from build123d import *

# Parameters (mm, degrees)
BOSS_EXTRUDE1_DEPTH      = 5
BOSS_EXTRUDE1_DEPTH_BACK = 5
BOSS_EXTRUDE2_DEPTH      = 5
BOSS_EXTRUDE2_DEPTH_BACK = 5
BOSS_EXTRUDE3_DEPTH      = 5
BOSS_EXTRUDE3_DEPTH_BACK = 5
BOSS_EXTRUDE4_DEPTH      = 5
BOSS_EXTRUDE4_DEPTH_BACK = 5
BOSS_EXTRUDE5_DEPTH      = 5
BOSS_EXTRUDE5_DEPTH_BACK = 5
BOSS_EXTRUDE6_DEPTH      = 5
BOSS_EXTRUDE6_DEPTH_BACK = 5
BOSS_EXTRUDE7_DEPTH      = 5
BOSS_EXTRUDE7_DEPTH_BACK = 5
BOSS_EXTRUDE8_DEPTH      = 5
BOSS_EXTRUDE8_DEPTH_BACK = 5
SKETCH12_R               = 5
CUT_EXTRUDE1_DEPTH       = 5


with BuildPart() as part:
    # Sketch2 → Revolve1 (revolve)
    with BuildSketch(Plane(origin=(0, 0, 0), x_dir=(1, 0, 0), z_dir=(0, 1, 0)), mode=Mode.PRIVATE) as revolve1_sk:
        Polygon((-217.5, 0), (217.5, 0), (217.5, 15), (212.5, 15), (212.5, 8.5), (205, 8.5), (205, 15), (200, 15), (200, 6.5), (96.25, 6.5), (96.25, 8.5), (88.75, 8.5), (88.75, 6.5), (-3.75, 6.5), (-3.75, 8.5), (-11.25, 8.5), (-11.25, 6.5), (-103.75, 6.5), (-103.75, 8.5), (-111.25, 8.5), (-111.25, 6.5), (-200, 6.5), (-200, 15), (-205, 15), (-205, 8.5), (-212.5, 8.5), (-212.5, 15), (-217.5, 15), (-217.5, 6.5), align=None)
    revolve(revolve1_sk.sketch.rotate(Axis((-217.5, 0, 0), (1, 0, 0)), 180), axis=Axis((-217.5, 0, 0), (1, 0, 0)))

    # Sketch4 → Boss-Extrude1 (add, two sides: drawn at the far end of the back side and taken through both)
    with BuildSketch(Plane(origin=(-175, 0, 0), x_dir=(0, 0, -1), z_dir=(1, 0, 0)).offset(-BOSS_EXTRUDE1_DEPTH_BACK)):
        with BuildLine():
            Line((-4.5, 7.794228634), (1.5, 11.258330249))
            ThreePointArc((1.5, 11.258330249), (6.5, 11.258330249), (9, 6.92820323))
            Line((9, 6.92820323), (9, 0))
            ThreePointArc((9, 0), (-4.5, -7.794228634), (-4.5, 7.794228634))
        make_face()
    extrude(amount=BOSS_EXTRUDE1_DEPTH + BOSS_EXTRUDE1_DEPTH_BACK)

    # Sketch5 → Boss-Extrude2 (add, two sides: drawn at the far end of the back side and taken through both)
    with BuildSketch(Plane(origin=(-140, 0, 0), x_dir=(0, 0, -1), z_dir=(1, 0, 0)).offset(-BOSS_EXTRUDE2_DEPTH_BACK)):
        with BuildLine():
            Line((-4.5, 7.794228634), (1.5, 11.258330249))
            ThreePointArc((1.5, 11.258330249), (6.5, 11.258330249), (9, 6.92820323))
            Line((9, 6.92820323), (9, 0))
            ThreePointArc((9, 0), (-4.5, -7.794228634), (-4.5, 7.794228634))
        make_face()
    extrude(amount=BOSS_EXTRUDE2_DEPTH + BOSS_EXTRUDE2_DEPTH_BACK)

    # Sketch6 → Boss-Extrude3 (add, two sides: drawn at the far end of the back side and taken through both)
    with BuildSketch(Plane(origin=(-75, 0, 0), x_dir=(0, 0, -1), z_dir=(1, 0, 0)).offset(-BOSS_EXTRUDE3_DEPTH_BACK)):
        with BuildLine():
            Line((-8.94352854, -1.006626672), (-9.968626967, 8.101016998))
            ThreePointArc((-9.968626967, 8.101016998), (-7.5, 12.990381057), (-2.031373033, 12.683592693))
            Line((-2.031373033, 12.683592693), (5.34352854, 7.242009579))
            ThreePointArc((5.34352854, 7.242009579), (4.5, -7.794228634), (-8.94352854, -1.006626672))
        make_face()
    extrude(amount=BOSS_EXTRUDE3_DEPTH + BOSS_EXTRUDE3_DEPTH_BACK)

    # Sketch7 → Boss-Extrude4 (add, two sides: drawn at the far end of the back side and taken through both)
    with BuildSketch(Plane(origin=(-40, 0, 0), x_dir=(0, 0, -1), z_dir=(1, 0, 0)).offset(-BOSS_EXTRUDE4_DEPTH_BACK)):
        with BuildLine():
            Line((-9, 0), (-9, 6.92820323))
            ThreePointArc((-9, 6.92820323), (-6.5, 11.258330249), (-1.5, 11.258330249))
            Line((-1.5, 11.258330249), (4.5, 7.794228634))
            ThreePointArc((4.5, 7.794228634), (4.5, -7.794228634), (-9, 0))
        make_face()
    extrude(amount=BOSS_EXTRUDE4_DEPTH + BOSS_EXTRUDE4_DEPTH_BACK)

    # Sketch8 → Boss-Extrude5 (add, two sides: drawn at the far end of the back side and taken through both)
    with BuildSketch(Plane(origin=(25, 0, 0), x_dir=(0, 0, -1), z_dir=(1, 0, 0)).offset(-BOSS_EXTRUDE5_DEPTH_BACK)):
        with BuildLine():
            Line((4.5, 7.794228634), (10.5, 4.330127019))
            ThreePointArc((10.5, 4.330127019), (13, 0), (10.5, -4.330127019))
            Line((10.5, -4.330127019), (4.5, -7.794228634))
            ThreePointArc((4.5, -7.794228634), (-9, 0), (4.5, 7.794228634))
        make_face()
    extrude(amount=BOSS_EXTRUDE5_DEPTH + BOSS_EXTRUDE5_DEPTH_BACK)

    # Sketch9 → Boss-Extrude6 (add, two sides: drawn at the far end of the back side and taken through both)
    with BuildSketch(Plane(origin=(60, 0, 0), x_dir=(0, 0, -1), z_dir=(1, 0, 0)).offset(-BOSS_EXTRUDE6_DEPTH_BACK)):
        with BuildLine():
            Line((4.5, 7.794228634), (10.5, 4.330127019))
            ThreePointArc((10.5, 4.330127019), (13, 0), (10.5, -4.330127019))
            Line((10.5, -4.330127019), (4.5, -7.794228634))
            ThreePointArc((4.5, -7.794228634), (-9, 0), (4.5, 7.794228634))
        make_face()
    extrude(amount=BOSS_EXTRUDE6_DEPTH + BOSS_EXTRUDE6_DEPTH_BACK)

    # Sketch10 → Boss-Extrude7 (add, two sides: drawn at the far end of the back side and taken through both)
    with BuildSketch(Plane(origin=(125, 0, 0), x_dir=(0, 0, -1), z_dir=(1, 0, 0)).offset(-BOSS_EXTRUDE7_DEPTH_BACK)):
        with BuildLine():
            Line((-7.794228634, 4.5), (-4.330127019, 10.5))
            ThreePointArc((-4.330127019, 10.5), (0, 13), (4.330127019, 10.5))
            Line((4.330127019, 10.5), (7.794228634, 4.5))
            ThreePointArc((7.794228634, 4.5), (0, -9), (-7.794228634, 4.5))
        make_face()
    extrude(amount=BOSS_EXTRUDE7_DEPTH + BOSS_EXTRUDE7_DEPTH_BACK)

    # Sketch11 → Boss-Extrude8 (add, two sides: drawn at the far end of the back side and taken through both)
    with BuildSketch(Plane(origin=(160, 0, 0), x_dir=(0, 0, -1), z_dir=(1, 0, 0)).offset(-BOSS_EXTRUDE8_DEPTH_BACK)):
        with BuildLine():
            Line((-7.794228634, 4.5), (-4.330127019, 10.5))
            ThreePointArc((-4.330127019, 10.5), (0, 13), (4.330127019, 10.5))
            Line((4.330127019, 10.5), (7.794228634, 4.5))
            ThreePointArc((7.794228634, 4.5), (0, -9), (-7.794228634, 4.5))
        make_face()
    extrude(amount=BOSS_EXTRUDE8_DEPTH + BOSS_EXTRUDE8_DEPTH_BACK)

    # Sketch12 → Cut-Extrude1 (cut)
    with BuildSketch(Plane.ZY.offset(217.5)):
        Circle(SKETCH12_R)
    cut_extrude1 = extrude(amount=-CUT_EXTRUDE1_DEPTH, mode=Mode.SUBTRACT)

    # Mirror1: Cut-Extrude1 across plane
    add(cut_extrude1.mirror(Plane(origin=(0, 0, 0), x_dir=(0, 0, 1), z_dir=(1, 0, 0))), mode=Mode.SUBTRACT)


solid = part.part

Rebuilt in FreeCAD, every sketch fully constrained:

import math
import FreeCAD as App
import Part
import Sketcher
Q = App.Units.Quantity


def add_polygon(sketch, points):
    """Adds a closed chain of lines whose ends are joined by coincident constraints."""
    first, n = sketch.GeometryCount, len(points)
    for a, b in zip(points, points[1:] + points[:1]):
        sketch.addGeometry(Part.LineSegment(App.Vector(*a, 0), App.Vector(*b, 0)), False)
    for i in range(n):
        sketch.addConstraint(Sketcher.Constraint("Coincident", first + i, 2, first + (i + 1) % n, 1))

doc = App.newDocument("Part")
body = doc.addObject("PartDesign::Body", "Body")

# Sketch on XZ plane
sketch1 = body.newObject("Sketcher::SketchObject", "Sketch")
sketch1.AttachmentSupport = (doc.getObject("XZ_Plane"), [""])
sketch1.MapMode = "FlatFace"
add_polygon(sketch1, [(-217.5, 0), (217.5, 0), (217.5, -15), (212.5, -15), (212.5, -8.5), (205, -8.5), (205, -15), (200, -15), (200, -6.5), (96.25, -6.5), (96.25, -8.5), (88.75, -8.5), (88.75, -6.5), (-3.75, -6.5), (-3.75, -8.5), (-11.25, -8.5), (-11.25, -6.5), (-103.75, -6.5), (-103.75, -8.5), (-111.25, -8.5), (-111.25, -6.5), (-200, -6.5), (-200, -15), (-205, -15), (-205, -8.5), (-212.5, -8.5), (-212.5, -15), (-217.5, -15)])  # lines 0-27
sketch1.addConstraint([
    Sketcher.Constraint("Horizontal", 0),
    Sketcher.Constraint("Vertical", 1),
    Sketcher.Constraint("Horizontal", 2),
    Sketcher.Constraint("Vertical", 3),
    Sketcher.Constraint("Horizontal", 4),
    Sketcher.Constraint("Vertical", 5),
    Sketcher.Constraint("Horizontal", 6),
    Sketcher.Constraint("Vertical", 7),
    Sketcher.Constraint("Horizontal", 8),
    Sketcher.Constraint("Vertical", 9),
    Sketcher.Constraint("Horizontal", 10),
    Sketcher.Constraint("Vertical", 11),
    Sketcher.Constraint("Horizontal", 12),
    Sketcher.Constraint("Vertical", 13),
    Sketcher.Constraint("Horizontal", 14),
    Sketcher.Constraint("Vertical", 15),
    Sketcher.Constraint("Horizontal", 16),
    Sketcher.Constraint("Vertical", 17),
    Sketcher.Constraint("Horizontal", 18),
    Sketcher.Constraint("Vertical", 19),
    Sketcher.Constraint("Horizontal", 20),
    Sketcher.Constraint("Vertical", 21),
    Sketcher.Constraint("Horizontal", 22),
    Sketcher.Constraint("Vertical", 23),
    Sketcher.Constraint("Horizontal", 24),
    Sketcher.Constraint("Vertical", 25),
    Sketcher.Constraint("Horizontal", 26),
    Sketcher.Constraint("Vertical", 27),
    Sketcher.Constraint("Symmetric", 0, 2, 27, 2, -1, 1),
    Sketcher.Constraint("Symmetric", 7, 2, 20, 2, -2),
    Sketcher.Constraint("Symmetric", 5, 2, 22, 2, -2),
    Sketcher.Constraint("Symmetric", 3, 2, 24, 2, -2),
    Sketcher.Constraint("Horizontal", 2, 2, 5, 2),
    Sketcher.Constraint("Horizontal", 4, 2, 9, 2),
    Sketcher.Constraint("Horizontal", 8, 2, 11, 2),
    Sketcher.Constraint("Horizontal", 10, 2, 13, 2),
    Sketcher.Constraint("Horizontal", 12, 2, 15, 2),
    Sketcher.Constraint("Horizontal", 14, 2, 17, 2),
    Sketcher.Constraint("Horizontal", 22, 2, 25, 2),
    Sketcher.Constraint("Equal", 2, 6),
    Sketcher.Constraint("Equal", 4, 10),
    Sketcher.Constraint("Equal", 10, 14),
    Sketcher.Constraint("Equal", 12, 16),
    Sketcher.Constraint("Equal", 14, 18),
    Sketcher.Constraint("DistanceX", 0, 1, 0, 2, Q("435 mm")),
    Sketcher.Constraint("DistanceX", 2, 2, 2, 1, Q("5 mm")),
    Sketcher.Constraint("DistanceY", 1, 2, 1, 1, Q("15 mm")),
    Sketcher.Constraint("DistanceY", 9, 2, 9, 1, Q("2 mm")),
    Sketcher.Constraint("DistanceX", 4, 2, 4, 1, Q("7.5 mm")),
    Sketcher.Constraint("DistanceX", 12, 2, 12, 1, Q("92.5 mm")),
    Sketcher.Constraint("DistanceY", 3, 1, 3, 2, Q("6.5 mm")),
    Sketcher.Constraint("DistanceX", 8, 2, 8, 1, Q("103.75 mm")),
])
revolution = body.newObject("PartDesign::Revolution", "Revolution")
revolution.Profile = sketch1
revolution.ReferenceAxis = (sketch1, ["H_Axis"])
revolution.Angle = 360

# Sketch on YZ plane
sketch2 = body.newObject("Sketcher::SketchObject", "Sketch001")
sketch2.AttachmentSupport = (doc.getObject("YZ_Plane"), [""])
sketch2.MapMode = "FlatFace"
sketch2.AttachmentOffset = App.Placement(App.Vector(0, 0, -175), App.Rotation())
sketch2.addGeometry([
    Part.LineSegment(App.Vector(11.25833, -1.5, 0), App.Vector(7.794229, 4.5, 0)),
    Part.ArcOfCircle(Part.Circle(App.Vector(0, 0, 0), App.Vector(0, 0, 1), 9), math.radians(30), math.radians(270)),
    Part.LineSegment(App.Vector(0, -9, 0), App.Vector(6.928203, -9, 0)),
    Part.ArcOfCircle(Part.Circle(App.Vector(6.928203, -4, 0), App.Vector(0, 0, 1), 5), math.radians(-90), math.radians(30)),
], False)
sketch2.addConstraint([
    Sketcher.Constraint("Tangent", 0, 2, 1, 1),
    Sketcher.Constraint("Tangent", 1, 2, 2, 1),
    Sketcher.Constraint("Tangent", 2, 2, 3, 1),
    Sketcher.Constraint("Tangent", 3, 2, 0, 1),
    Sketcher.Constraint("Horizontal", 2),
    Sketcher.Constraint("Coincident", 1, 3, -1, 1),
    Sketcher.Constraint("Radius", 1, Q("9 mm")),
    Sketcher.Constraint("Radius", 3, Q("5 mm")),
    Sketcher.Constraint("Angle", 0, Q("120 deg")),
])
pad1 = body.newObject("PartDesign::Pad", "Pad")
pad1.Profile = sketch2
pad1.Type = "TwoLengths"
pad1.Length = 5
pad1.Length2 = 5

# Sketch on YZ plane
sketch3 = body.newObject("Sketcher::SketchObject", "Sketch002")
sketch3.AttachmentSupport = (doc.getObject("YZ_Plane"), [""])
sketch3.MapMode = "FlatFace"
sketch3.AttachmentOffset = App.Placement(App.Vector(0, 0, -140), App.Rotation())
sketch3.addGeometry([
    Part.LineSegment(App.Vector(11.25833, -1.5, 0), App.Vector(7.794229, 4.5, 0)),
    Part.ArcOfCircle(Part.Circle(App.Vector(0, 0, 0), App.Vector(0, 0, 1), 9), math.radians(30), math.radians(270)),
    Part.LineSegment(App.Vector(0, -9, 0), App.Vector(6.928203, -9, 0)),
    Part.ArcOfCircle(Part.Circle(App.Vector(6.928203, -4, 0), App.Vector(0, 0, 1), 5), math.radians(-90), math.radians(30)),
], False)
sketch3.addConstraint([
    Sketcher.Constraint("Tangent", 0, 2, 1, 1),
    Sketcher.Constraint("Tangent", 1, 2, 2, 1),
    Sketcher.Constraint("Tangent", 2, 2, 3, 1),
    Sketcher.Constraint("Tangent", 3, 2, 0, 1),
    Sketcher.Constraint("Horizontal", 2),
    Sketcher.Constraint("Coincident", 1, 3, -1, 1),
    Sketcher.Constraint("Radius", 1, Q("9 mm")),
    Sketcher.Constraint("Radius", 3, Q("5 mm")),
    Sketcher.Constraint("Angle", 0, Q("120 deg")),
])
pad2 = body.newObject("PartDesign::Pad", "Pad001")
pad2.Profile = sketch3
pad2.Type = "TwoLengths"
pad2.Length = 5
pad2.Length2 = 5

# Sketch on YZ plane
sketch4 = body.newObject("Sketcher::SketchObject", "Sketch003")
sketch4.AttachmentSupport = (doc.getObject("YZ_Plane"), [""])
sketch4.MapMode = "FlatFace"
sketch4.AttachmentOffset = App.Placement(App.Vector(0, 0, -75), App.Rotation())
sketch4.addGeometry([
    Part.LineSegment(App.Vector(8.101017, 9.968627, 0), App.Vector(-1.006627, 8.943529, 0)),
    Part.ArcOfCircle(Part.Circle(App.Vector(0, 0, 0), App.Vector(0, 0, 1), 9), math.radians(96.421822), math.radians(323.578178)),
    Part.LineSegment(App.Vector(7.24201, -5.343529, 0), App.Vector(12.683593, 2.031373, 0)),
    Part.ArcOfCircle(Part.Circle(App.Vector(8.660254, 5, 0), App.Vector(0, 0, 1), 5), math.radians(-36.421822), math.radians(96.421822)),
], False)
sketch4.addConstraint([
    Sketcher.Constraint("Tangent", 0, 2, 1, 1),
    Sketcher.Constraint("Tangent", 1, 2, 2, 1),
    Sketcher.Constraint("Tangent", 2, 2, 3, 1),
    Sketcher.Constraint("Tangent", 3, 2, 0, 1),
    Sketcher.Constraint("Coincident", 1, 3, -1, 1),
    Sketcher.Constraint("Radius", 1, Q("9 mm")),
    Sketcher.Constraint("Radius", 3, Q("5 mm")),
    Sketcher.Constraint("DistanceY", -1, 1, 3, 3, Q("5 mm")),
    Sketcher.Constraint("DistanceY", 1, 2, 2, 2, Q("7.374902 mm")),
])
pad3 = body.newObject("PartDesign::Pad", "Pad002")
pad3.Profile = sketch4
pad3.Type = "TwoLengths"
pad3.Length = 5
pad3.Length2 = 5

# Sketch on YZ plane
sketch5 = body.newObject("Sketcher::SketchObject", "Sketch004")
sketch5.AttachmentSupport = (doc.getObject("YZ_Plane"), [""])
sketch5.MapMode = "FlatFace"
sketch5.AttachmentOffset = App.Placement(App.Vector(0, 0, -40), App.Rotation())
sketch5.addGeometry([
    Part.LineSegment(App.Vector(6.928203, 9, 0), App.Vector(0, 9, 0)),
    Part.ArcOfCircle(Part.Circle(App.Vector(0, 0, 0), App.Vector(0, 0, 1), 9), math.radians(90), math.radians(330)),
    Part.LineSegment(App.Vector(7.794229, -4.5, 0), App.Vector(11.25833, 1.5, 0)),
    Part.ArcOfCircle(Part.Circle(App.Vector(6.928203, 4, 0), App.Vector(0, 0, 1), 5), math.radians(-30), math.radians(90)),
], False)
sketch5.addConstraint([
    Sketcher.Constraint("Tangent", 0, 2, 1, 1),
    Sketcher.Constraint("Tangent", 1, 2, 2, 1),
    Sketcher.Constraint("Tangent", 2, 2, 3, 1),
    Sketcher.Constraint("Tangent", 3, 2, 0, 1),
    Sketcher.Constraint("Horizontal", 0),
    Sketcher.Constraint("Coincident", 1, 3, -1, 1),
    Sketcher.Constraint("Radius", 1, Q("9 mm")),
    Sketcher.Constraint("Radius", 3, Q("5 mm")),
    Sketcher.Constraint("Angle", 2, Q("60 deg")),
])
pad4 = body.newObject("PartDesign::Pad", "Pad003")
pad4.Profile = sketch5
pad4.Type = "TwoLengths"
pad4.Length = 5
pad4.Length2 = 5

# Sketch on YZ plane
sketch6 = body.newObject("Sketcher::SketchObject", "Sketch005")
sketch6.AttachmentSupport = (doc.getObject("YZ_Plane"), [""])
sketch6.MapMode = "FlatFace"
sketch6.AttachmentOffset = App.Placement(App.Vector(0, 0, 25), App.Rotation())
sketch6.addGeometry([
    Part.LineSegment(App.Vector(4.330127, -10.5, 0), App.Vector(7.794229, -4.5, 0)),
    Part.ArcOfCircle(Part.Circle(App.Vector(0, 0, 0), App.Vector(0, 0, 1), 9), math.radians(-30), math.radians(210)),
    Part.LineSegment(App.Vector(-7.794229, -4.5, 0), App.Vector(-4.330127, -10.5, 0)),
    Part.ArcOfCircle(Part.Circle(App.Vector(0, -8, 0), App.Vector(0, 0, 1), 5), math.radians(-150), math.radians(-30)),
], False)
sketch6.addConstraint([
    Sketcher.Constraint("Tangent", 0, 2, 1, 1),
    Sketcher.Constraint("Tangent", 1, 2, 2, 1),
    Sketcher.Constraint("Tangent", 2, 2, 3, 1),
    Sketcher.Constraint("Tangent", 3, 2, 0, 1),
    Sketcher.Constraint("Coincident", 1, 3, -1, 1),
    Sketcher.Constraint("PointOnObject", 3, 3, -2),
    Sketcher.Constraint("Radius", 1, Q("9 mm")),
    Sketcher.Constraint("Radius", 3, Q("5 mm")),
    Sketcher.Constraint("Angle", 0, Q("60 deg")),
])
pad5 = body.newObject("PartDesign::Pad", "Pad004")
pad5.Profile = sketch6
pad5.Type = "TwoLengths"
pad5.Length = 5
pad5.Length2 = 5

# Sketch on YZ plane
sketch7 = body.newObject("Sketcher::SketchObject", "Sketch006")
sketch7.AttachmentSupport = (doc.getObject("YZ_Plane"), [""])
sketch7.MapMode = "FlatFace"
sketch7.AttachmentOffset = App.Placement(App.Vector(0, 0, 60), App.Rotation())
sketch7.addGeometry([
    Part.LineSegment(App.Vector(4.330127, -10.5, 0), App.Vector(7.794229, -4.5, 0)),
    Part.ArcOfCircle(Part.Circle(App.Vector(0, 0, 0), App.Vector(0, 0, 1), 9), math.radians(-30), math.radians(210)),
    Part.LineSegment(App.Vector(-7.794229, -4.5, 0), App.Vector(-4.330127, -10.5, 0)),
    Part.ArcOfCircle(Part.Circle(App.Vector(0, -8, 0), App.Vector(0, 0, 1), 5), math.radians(-150), math.radians(-30)),
], False)
sketch7.addConstraint([
    Sketcher.Constraint("Tangent", 0, 2, 1, 1),
    Sketcher.Constraint("Tangent", 1, 2, 2, 1),
    Sketcher.Constraint("Tangent", 2, 2, 3, 1),
    Sketcher.Constraint("Tangent", 3, 2, 0, 1),
    Sketcher.Constraint("Coincident", 1, 3, -1, 1),
    Sketcher.Constraint("PointOnObject", 3, 3, -2),
    Sketcher.Constraint("Radius", 1, Q("9 mm")),
    Sketcher.Constraint("Radius", 3, Q("5 mm")),
    Sketcher.Constraint("Angle", 0, Q("60 deg")),
])
pad6 = body.newObject("PartDesign::Pad", "Pad005")
pad6.Profile = sketch7
pad6.Type = "TwoLengths"
pad6.Length = 5
pad6.Length2 = 5

# Sketch on YZ plane
sketch8 = body.newObject("Sketcher::SketchObject", "Sketch007")
sketch8.AttachmentSupport = (doc.getObject("YZ_Plane"), [""])
sketch8.MapMode = "FlatFace"
sketch8.AttachmentOffset = App.Placement(App.Vector(0, 0, 125), App.Rotation())
sketch8.addGeometry([
    Part.LineSegment(App.Vector(10.5, 4.330127, 0), App.Vector(4.5, 7.794229, 0)),
    Part.ArcOfCircle(Part.Circle(App.Vector(0, 0, 0), App.Vector(0, 0, 1), 9), math.radians(60), math.radians(300)),
    Part.LineSegment(App.Vector(4.5, -7.794229, 0), App.Vector(10.5, -4.330127, 0)),
    Part.ArcOfCircle(Part.Circle(App.Vector(8, 0, 0), App.Vector(0, 0, 1), 5), math.radians(-60), math.radians(60)),
], False)
sketch8.addConstraint([
    Sketcher.Constraint("Tangent", 0, 2, 1, 1),
    Sketcher.Constraint("Tangent", 1, 2, 2, 1),
    Sketcher.Constraint("Tangent", 2, 2, 3, 1),
    Sketcher.Constraint("Tangent", 3, 2, 0, 1),
    Sketcher.Constraint("Coincident", 1, 3, -1, 1),
    Sketcher.Constraint("PointOnObject", 3, 3, -1),
    Sketcher.Constraint("Radius", 1, Q("9 mm")),
    Sketcher.Constraint("Radius", 3, Q("5 mm")),
    Sketcher.Constraint("Angle", 0, Q("150 deg")),
])
pad7 = body.newObject("PartDesign::Pad", "Pad006")
pad7.Profile = sketch8
pad7.Type = "TwoLengths"
pad7.Length = 5
pad7.Length2 = 5

# Sketch on YZ plane
sketch9 = body.newObject("Sketcher::SketchObject", "Sketch008")
sketch9.AttachmentSupport = (doc.getObject("YZ_Plane"), [""])
sketch9.MapMode = "FlatFace"
sketch9.AttachmentOffset = App.Placement(App.Vector(0, 0, 160), App.Rotation())
sketch9.addGeometry([
    Part.LineSegment(App.Vector(10.5, 4.330127, 0), App.Vector(4.5, 7.794229, 0)),
    Part.ArcOfCircle(Part.Circle(App.Vector(0, 0, 0), App.Vector(0, 0, 1), 9), math.radians(60), math.radians(300)),
    Part.LineSegment(App.Vector(4.5, -7.794229, 0), App.Vector(10.5, -4.330127, 0)),
    Part.ArcOfCircle(Part.Circle(App.Vector(8, 0, 0), App.Vector(0, 0, 1), 5), math.radians(-60), math.radians(60)),
], False)
sketch9.addConstraint([
    Sketcher.Constraint("Tangent", 0, 2, 1, 1),
    Sketcher.Constraint("Tangent", 1, 2, 2, 1),
    Sketcher.Constraint("Tangent", 2, 2, 3, 1),
    Sketcher.Constraint("Tangent", 3, 2, 0, 1),
    Sketcher.Constraint("Coincident", 1, 3, -1, 1),
    Sketcher.Constraint("PointOnObject", 3, 3, -1),
    Sketcher.Constraint("Radius", 1, Q("9 mm")),
    Sketcher.Constraint("Radius", 3, Q("5 mm")),
    Sketcher.Constraint("Angle", 0, Q("150 deg")),
])
pad8 = body.newObject("PartDesign::Pad", "Pad007")
pad8.Profile = sketch9
pad8.Type = "TwoLengths"
pad8.Length = 5
pad8.Length2 = 5

# Sketch on YZ plane
sketch10 = body.newObject("Sketcher::SketchObject", "Sketch009")
sketch10.AttachmentSupport = (doc.getObject("YZ_Plane"), [""])
sketch10.MapMode = "FlatFace"
sketch10.AttachmentOffset = App.Placement(App.Vector(0, 0, -217.5), App.Rotation())
sketch10.addGeometry(Part.Circle(App.Vector(0, 0, 0), App.Vector(0, 0, 1), 5), False)
sketch10.addConstraint([
    Sketcher.Constraint("Coincident", 0, 3, -1, 1),
    Sketcher.Constraint("Diameter", 0, Q("10 mm")),
])
pocket1 = body.newObject("PartDesign::Pocket", "Pocket")
pocket1.Profile = sketch10
pocket1.Length = 5
pocket1.Reversed = True
doc.recompute()

mirrored = body.newObject("PartDesign::Mirrored", "Mirrored")
mirrored.Originals = [pocket1]
mirrored.MirrorPlane = (doc.getObject("YZ_Plane"), [""])
body.Tip = mirrored

doc.recompute()
